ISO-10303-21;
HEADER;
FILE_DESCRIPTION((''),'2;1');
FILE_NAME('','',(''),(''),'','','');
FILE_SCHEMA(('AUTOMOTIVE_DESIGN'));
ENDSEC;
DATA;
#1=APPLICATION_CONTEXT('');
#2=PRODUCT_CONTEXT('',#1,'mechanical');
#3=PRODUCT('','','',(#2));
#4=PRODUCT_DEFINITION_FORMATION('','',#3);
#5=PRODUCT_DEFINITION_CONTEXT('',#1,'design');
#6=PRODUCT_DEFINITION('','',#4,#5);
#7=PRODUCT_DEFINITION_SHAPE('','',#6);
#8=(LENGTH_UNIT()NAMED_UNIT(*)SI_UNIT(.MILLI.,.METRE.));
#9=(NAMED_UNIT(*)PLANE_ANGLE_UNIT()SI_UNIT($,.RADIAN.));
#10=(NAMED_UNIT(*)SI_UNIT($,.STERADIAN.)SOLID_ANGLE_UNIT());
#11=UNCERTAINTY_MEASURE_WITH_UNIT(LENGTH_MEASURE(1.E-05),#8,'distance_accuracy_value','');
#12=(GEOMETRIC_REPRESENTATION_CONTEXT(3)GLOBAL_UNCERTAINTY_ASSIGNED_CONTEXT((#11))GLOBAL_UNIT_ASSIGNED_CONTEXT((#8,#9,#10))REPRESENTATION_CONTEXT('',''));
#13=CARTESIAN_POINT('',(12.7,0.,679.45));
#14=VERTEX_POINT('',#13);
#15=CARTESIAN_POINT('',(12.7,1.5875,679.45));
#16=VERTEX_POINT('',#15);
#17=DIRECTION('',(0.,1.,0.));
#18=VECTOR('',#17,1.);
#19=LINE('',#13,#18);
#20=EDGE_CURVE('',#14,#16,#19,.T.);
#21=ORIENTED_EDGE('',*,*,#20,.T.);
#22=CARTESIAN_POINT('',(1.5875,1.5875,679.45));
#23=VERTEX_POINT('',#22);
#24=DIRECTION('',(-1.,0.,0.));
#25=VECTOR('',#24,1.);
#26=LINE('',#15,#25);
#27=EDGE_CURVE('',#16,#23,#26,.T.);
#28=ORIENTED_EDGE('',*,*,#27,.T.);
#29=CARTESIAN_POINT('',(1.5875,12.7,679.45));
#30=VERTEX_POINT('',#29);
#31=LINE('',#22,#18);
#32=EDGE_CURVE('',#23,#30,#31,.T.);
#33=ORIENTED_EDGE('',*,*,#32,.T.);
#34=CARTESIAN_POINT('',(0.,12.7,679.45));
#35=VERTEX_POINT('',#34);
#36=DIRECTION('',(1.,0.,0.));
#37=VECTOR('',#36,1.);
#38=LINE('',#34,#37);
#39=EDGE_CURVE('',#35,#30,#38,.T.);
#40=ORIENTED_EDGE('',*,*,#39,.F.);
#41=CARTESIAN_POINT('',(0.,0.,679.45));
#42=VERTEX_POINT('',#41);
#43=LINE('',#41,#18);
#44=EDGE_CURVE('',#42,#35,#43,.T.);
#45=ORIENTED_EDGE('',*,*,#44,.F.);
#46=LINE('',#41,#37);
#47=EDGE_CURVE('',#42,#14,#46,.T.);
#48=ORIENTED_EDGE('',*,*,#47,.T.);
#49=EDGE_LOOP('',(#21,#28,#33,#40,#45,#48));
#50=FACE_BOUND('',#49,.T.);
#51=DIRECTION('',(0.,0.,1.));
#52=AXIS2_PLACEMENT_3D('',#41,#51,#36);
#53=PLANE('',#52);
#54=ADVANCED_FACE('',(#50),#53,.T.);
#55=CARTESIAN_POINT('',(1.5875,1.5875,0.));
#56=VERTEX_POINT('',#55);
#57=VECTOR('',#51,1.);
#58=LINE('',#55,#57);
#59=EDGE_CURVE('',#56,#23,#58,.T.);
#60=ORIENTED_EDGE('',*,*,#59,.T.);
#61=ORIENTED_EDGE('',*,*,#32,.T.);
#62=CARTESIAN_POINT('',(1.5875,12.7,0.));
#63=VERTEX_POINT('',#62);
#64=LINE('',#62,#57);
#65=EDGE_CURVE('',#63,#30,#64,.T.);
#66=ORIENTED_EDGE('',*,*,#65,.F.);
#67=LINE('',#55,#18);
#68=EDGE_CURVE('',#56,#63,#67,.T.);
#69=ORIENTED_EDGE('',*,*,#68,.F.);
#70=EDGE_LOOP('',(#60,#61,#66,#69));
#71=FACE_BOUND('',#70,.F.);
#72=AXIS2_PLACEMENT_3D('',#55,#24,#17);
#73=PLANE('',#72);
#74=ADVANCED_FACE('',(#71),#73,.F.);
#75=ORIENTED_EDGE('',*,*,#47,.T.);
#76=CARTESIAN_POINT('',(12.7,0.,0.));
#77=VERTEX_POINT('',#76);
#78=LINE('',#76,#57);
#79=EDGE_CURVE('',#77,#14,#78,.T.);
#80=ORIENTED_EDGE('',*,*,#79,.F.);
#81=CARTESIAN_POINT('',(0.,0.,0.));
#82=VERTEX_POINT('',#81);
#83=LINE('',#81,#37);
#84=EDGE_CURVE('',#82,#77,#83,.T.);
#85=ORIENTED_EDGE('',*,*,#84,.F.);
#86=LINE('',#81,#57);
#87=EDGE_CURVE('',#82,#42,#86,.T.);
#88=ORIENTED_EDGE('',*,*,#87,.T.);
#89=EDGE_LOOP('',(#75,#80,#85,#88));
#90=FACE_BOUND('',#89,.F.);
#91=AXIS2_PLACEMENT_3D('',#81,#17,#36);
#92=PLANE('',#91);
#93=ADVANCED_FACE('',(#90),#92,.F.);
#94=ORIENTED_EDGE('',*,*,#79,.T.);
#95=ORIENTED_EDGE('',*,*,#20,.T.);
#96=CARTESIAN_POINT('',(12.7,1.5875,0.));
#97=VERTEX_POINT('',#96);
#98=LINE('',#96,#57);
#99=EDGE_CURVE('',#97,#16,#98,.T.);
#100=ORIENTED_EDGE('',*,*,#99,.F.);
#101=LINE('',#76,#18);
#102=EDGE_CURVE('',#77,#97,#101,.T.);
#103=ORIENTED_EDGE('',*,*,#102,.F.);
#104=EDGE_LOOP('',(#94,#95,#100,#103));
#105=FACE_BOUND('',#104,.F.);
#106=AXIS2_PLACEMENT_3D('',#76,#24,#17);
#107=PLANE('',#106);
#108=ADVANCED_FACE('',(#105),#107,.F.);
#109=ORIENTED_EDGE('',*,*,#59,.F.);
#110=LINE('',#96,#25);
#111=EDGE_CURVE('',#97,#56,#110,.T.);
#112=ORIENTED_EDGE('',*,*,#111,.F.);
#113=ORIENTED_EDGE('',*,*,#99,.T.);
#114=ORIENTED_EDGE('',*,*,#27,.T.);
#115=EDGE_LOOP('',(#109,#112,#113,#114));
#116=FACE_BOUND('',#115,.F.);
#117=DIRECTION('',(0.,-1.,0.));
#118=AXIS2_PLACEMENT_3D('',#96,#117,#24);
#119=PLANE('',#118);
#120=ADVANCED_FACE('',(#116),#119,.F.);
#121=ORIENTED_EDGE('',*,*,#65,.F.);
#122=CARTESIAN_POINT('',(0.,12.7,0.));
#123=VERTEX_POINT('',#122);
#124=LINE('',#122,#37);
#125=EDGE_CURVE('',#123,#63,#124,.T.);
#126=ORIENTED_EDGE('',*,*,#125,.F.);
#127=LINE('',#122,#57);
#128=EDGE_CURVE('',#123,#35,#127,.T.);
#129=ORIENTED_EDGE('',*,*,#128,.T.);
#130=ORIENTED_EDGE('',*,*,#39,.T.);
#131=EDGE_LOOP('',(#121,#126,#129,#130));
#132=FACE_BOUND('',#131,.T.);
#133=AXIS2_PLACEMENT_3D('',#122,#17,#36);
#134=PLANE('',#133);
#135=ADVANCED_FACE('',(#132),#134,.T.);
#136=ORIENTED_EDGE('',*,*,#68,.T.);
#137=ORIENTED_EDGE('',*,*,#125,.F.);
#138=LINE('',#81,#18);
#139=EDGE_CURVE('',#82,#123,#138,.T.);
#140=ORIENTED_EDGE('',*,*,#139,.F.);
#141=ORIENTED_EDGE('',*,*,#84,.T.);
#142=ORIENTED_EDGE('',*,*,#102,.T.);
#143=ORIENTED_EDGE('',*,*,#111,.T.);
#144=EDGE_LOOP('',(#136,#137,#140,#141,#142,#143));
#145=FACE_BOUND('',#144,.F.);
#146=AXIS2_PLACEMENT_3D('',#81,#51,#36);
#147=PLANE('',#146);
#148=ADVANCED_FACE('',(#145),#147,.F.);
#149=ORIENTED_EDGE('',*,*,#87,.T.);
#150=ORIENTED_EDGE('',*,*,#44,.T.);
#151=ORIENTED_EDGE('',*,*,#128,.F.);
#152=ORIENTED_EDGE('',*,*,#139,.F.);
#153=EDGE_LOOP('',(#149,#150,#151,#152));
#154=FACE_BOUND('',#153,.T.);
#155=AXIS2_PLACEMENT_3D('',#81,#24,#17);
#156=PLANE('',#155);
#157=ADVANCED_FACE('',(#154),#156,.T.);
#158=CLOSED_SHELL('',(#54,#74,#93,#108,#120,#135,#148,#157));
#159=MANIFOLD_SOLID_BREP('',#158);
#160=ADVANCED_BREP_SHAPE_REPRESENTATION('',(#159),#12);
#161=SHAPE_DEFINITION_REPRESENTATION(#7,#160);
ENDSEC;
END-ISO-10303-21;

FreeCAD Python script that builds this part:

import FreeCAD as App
import Part
import Sketcher
Q = App.Units.Quantity

doc = App.newDocument("Part")
params = doc.addObject("Spreadsheet::Sheet", "Params")
for row, (alias, value) in enumerate([
    ("sketch1_width", "0.5 in"),
    ("sketch1_width2", "0.0625 in"),
    ("pad1_length", "26.75 in"),
], start=1):
    params.set(f"A{row}", alias)
    params.set(f"B{row}", "=" + value)
    params.setAlias(f"B{row}", alias)

body = doc.addObject("PartDesign::Body", "Body")

# Sketch on XY plane
sketch1 = body.newObject("Sketcher::SketchObject", "Sketch")
sketch1.AttachmentSupport = (doc.getObject("XY_Plane"), [""])
sketch1.MapMode = "FlatFace"
sketch1.addGeometry(Part.LineSegment(App.Vector(0, 12.7, 0), App.Vector(0, 0, 0)), False)
sketch1.addGeometry(Part.LineSegment(App.Vector(0, 0, 0), App.Vector(12.7, 0, 0)), False)
sketch1.addGeometry(Part.LineSegment(App.Vector(12.7, 0, 0), App.Vector(12.7, 1.6, 0)), False)
sketch1.addGeometry(Part.LineSegment(App.Vector(12.7, 1.6, 0), App.Vector(1.6, 1.6, 0)), False)
sketch1.addGeometry(Part.LineSegment(App.Vector(1.6, 1.6, 0), App.Vector(1.6, 12.7, 0)), False)
sketch1.addGeometry(Part.LineSegment(App.Vector(1.6, 12.7, 0), App.Vector(0, 12.7, 0)), False)
sketch1.addConstraint(Sketcher.Constraint("Coincident", 0, 2, 1, 1))
sketch1.addConstraint(Sketcher.Constraint("Coincident", 1, 2, 2, 1))
sketch1.addConstraint(Sketcher.Constraint("Coincident", 2, 2, 3, 1))
sketch1.addConstraint(Sketcher.Constraint("Coincident", 3, 2, 4, 1))
sketch1.addConstraint(Sketcher.Constraint("Coincident", 4, 2, 5, 1))
sketch1.addConstraint(Sketcher.Constraint("Coincident", 5, 2, 0, 1))
sketch1.addConstraint(Sketcher.Constraint("Vertical", 0))
sketch1.addConstraint(Sketcher.Constraint("Horizontal", 1))
sketch1.addConstraint(Sketcher.Constraint("Vertical", 2))
sketch1.addConstraint(Sketcher.Constraint("Horizontal", 3))
sketch1.addConstraint(Sketcher.Constraint("Vertical", 4))
sketch1.addConstraint(Sketcher.Constraint("Horizontal", 5))
sketch1.addConstraint(Sketcher.Constraint("Coincident", 0, 2, -1, 1))
sketch1.addConstraint(Sketcher.Constraint("Equal", 1, 0))
sketch1.addConstraint(Sketcher.Constraint("Equal", 5, 2))
sketch1.addConstraint(Sketcher.Constraint("DistanceX", 1, 1, 1, 2, Q("0.5 in")))
sketch1.addConstraint(Sketcher.Constraint("DistanceX", 5, 2, 5, 1, Q("0.0625 in")))
sketch1.setExpression("Constraints[15]", "Params.sketch1_width")
sketch1.setExpression("Constraints[16]", "Params.sketch1_width2")
pad1 = body.newObject("PartDesign::Pad", "Pad")
pad1.Profile = sketch1
pad1.setExpression("Length", "Params.pad1_length")

doc.recompute()
